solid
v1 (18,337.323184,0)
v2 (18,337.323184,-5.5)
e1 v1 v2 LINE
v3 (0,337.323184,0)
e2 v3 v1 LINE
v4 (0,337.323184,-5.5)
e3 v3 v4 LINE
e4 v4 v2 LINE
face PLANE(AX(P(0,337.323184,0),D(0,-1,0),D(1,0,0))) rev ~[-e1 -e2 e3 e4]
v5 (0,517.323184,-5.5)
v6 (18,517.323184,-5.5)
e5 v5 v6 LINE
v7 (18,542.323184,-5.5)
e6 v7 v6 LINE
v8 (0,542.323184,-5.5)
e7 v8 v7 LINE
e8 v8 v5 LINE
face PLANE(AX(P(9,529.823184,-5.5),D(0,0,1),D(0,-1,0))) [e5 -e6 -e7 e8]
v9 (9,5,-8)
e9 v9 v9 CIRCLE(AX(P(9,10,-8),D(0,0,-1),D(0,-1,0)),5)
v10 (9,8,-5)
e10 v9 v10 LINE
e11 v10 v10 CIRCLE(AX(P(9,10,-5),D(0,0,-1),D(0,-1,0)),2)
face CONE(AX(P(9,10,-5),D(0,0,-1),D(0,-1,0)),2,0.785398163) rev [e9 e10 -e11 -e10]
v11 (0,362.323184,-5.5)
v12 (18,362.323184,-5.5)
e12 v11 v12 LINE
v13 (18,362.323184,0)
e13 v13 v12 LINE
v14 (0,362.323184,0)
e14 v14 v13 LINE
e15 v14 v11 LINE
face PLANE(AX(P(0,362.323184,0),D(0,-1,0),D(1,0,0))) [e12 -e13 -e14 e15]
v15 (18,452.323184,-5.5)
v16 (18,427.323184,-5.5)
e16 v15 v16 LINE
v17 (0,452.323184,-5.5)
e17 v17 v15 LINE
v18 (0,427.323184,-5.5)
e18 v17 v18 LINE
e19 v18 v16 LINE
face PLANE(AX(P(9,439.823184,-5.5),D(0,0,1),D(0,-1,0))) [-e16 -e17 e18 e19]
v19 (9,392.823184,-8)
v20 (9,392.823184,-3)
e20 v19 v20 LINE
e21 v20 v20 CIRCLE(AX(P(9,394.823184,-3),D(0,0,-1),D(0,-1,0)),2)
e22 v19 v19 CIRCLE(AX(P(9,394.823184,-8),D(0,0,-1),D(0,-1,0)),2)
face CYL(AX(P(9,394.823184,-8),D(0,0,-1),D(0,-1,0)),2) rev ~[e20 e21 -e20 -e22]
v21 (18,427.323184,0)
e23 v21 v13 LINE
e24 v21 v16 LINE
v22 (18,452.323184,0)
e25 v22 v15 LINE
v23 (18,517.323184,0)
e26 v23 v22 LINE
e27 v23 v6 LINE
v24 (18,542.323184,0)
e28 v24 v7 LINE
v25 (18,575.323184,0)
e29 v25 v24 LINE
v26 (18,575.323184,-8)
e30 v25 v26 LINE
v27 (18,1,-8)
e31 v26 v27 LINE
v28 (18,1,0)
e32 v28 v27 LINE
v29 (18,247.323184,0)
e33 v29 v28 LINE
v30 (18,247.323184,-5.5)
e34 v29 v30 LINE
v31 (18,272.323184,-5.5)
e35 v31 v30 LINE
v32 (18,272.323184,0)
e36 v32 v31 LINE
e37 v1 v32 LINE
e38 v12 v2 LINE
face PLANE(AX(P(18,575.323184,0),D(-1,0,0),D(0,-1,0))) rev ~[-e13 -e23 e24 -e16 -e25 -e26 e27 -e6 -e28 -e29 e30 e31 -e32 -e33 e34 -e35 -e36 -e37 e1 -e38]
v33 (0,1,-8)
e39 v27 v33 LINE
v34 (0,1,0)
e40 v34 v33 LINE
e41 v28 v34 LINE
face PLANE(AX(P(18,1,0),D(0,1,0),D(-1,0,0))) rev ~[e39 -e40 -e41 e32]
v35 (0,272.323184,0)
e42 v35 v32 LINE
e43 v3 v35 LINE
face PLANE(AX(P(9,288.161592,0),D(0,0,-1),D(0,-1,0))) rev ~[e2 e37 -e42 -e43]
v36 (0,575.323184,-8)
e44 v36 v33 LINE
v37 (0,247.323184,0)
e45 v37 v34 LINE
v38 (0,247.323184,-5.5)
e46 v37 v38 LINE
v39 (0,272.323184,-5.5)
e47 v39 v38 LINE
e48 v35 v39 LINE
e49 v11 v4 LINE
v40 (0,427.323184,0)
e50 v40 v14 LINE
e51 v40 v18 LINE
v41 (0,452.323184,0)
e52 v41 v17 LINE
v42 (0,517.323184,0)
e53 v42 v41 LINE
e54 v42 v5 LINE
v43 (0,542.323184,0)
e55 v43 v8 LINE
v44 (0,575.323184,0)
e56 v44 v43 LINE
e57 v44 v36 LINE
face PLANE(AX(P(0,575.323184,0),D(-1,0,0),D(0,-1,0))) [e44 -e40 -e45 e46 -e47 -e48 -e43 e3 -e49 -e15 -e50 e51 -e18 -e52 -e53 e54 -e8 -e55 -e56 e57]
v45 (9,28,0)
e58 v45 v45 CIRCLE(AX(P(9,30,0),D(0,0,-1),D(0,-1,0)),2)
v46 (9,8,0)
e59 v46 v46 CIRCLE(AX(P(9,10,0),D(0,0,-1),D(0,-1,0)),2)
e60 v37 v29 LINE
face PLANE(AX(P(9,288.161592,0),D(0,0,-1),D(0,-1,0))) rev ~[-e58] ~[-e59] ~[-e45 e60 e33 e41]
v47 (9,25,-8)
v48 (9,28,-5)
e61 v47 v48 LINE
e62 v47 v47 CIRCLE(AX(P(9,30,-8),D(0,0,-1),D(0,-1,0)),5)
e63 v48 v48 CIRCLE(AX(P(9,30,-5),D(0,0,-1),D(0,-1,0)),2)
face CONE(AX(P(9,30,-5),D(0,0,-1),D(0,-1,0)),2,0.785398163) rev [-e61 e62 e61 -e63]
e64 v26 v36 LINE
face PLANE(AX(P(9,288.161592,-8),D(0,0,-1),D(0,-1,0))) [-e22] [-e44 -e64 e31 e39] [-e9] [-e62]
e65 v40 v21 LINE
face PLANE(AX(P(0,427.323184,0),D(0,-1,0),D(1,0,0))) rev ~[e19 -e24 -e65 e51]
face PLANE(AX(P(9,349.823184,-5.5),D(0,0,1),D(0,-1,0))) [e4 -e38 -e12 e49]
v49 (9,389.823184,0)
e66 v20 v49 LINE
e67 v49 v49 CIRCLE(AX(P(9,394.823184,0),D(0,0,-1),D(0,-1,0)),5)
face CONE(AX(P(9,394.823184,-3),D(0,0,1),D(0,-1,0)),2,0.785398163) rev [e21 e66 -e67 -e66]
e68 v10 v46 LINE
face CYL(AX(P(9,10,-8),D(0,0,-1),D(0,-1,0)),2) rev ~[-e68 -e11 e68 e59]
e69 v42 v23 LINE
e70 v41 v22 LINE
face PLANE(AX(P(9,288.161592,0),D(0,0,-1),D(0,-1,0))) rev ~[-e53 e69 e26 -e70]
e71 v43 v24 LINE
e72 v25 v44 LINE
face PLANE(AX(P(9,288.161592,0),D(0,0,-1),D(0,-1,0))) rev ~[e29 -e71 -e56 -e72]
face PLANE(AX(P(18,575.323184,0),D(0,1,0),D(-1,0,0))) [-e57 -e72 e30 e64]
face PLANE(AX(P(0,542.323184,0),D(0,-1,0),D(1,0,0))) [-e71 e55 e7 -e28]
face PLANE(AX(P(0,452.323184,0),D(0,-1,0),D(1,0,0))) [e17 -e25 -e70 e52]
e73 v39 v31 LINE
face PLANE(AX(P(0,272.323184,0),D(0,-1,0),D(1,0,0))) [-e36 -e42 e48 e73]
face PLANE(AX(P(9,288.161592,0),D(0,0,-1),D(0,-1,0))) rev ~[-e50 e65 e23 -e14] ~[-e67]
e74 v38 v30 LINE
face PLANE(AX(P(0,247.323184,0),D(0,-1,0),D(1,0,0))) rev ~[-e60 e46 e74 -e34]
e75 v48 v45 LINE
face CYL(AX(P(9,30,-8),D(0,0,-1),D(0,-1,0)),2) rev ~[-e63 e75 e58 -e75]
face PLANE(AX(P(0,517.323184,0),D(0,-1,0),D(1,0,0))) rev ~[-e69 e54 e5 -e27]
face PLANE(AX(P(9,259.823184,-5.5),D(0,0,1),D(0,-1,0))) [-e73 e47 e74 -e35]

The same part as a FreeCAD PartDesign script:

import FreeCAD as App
import Part
import Sketcher

V = App.Vector


def edges_at(feature, points):
    """Names of the edges that pass closest to the given points."""
    edges = feature.Shape.Edges
    near = lambda p: min(range(len(edges)), key=lambda i: edges[i].distToShape(Part.Vertex(*p))[0])
    return sorted({f"Edge{near(p) + 1}" for p in points})

doc = App.newDocument("Part")
body = doc.addObject("PartDesign::Body", "Body")

sketch1 = body.newObject("Sketcher::SketchObject", "Sketch")
sketch1.AttachmentSupport = (doc.getObject("XY_Plane"), [""])
sketch1.MapMode = "FlatFace"
sketch1.addGeometry([
    Part.LineSegment(V(-229, -90, 0), V(-229, -108, 0)),
    Part.LineSegment(V(-229, -108, 0), V(345, -108, 0)),
    Part.LineSegment(V(345, -108, 0), V(345, -90, 0)),
    Part.LineSegment(V(345, -90, 0), V(-229, -90, 0)),
], False)
sketch1.addConstraint([
    Sketcher.Constraint("Coincident", 0, 2, 1, 1),
    Sketcher.Constraint("Coincident", 1, 2, 2, 1),
    Sketcher.Constraint("Coincident", 2, 2, 3, 1),
    Sketcher.Constraint("Coincident", 3, 2, 0, 1),
    Sketcher.Constraint("Vertical", 0),
    Sketcher.Constraint("Horizontal", 1),
    Sketcher.Constraint("Vertical", 2),
    Sketcher.Constraint("Horizontal", 3),
    Sketcher.Constraint("DistanceY", 0, 2, 0, 1, 18.0),
    Sketcher.Constraint("DistanceY", 0, 2, -1, 1, 108.0),
    Sketcher.Constraint("DistanceX", -1, 1, 1, 2, 345.0),
    Sketcher.Constraint("DistanceX", 1, 1, 1, 2, 574.323184),
])
pad1 = body.newObject("PartDesign::Pad", "Pad")
pad1.Profile = sketch1
pad1.Length = 8

sketch2 = body.newObject("Sketcher::SketchObject", "Sketch001")
sketch2.AttachmentSupport = (doc.getObject("XY_Plane"), [""])
sketch2.MapMode = "FlatFace"
sketch2.AttachmentOffset = App.Placement(V(0, 0, 8), App.Rotation())
sketch2.addGeometry([
    Part.Circle(V(316, -99, 0), V(0, 0, 1), 2),
    Part.Circle(V(336, -99, 0), V(0, 0, 1), 2),
], False)
sketch2.addConstraint([
    Sketcher.Constraint("Equal", 0, 1),
    Sketcher.Constraint("Horizontal", 0, 3, 1, 3),
    Sketcher.Constraint("Diameter", 0, 4.0),
    Sketcher.Constraint("DistanceX", -1, 1, 0, 3, 316.0),
    Sketcher.Constraint("DistanceY", 0, 3, -1, 1, 99.0),
    Sketcher.Constraint("DistanceX", -1, 1, 1, 3, 336.0),
])
pocket1 = body.newObject("PartDesign::Pocket", "Pocket")
pocket1.Profile = sketch2
pocket1.Type = "ThroughAll"
doc.recompute()

chamfer = body.newObject("PartDesign::Chamfer", "Chamfer")
chamfer.Base = (pocket1, edges_at(pocket1, [(334, -99, 8), (314, -99, 8)]))
chamfer.Size = 3

sketch3 = body.newObject("Sketcher::SketchObject", "Sketch002")
sketch3.AttachmentSupport = (doc.getObject("XY_Plane"), [""])
sketch3.MapMode = "FlatFace"
sketch3.addGeometry([
    Part.LineSegment(V(-196, -108, 0), V(-196, -90, 0)),
    Part.LineSegment(V(-196, -90, 0), V(-171, -90, 0)),
    Part.LineSegment(V(-171, -90, 0), V(-171, -108, 0)),
    Part.LineSegment(V(-171, -108, 0), V(-196, -108, 0)),
    Part.LineSegment(V(-106, -108, 0), V(-106, -90, 0)),
    Part.LineSegment(V(-106, -90, 0), V(-81, -90, 0)),
    Part.LineSegment(V(-81, -90, 0), V(-81, -108, 0)),
    Part.LineSegment(V(-81, -108, 0), V(-106, -108, 0)),
    Part.LineSegment(V(-16, -108, 0), V(-16, -90, 0)),
    Part.LineSegment(V(-16, -90, 0), V(9, -90, 0)),
    Part.LineSegment(V(9, -90, 0), V(9, -108, 0)),
    Part.LineSegment(V(9, -108, 0), V(-16, -108, 0)),
    Part.LineSegment(V(74, -108, 0), V(74, -90, 0)),
    Part.LineSegment(V(74, -90, 0), V(99, -90, 0)),
    Part.LineSegment(V(99, -90, 0), V(99, -108, 0)),
    Part.LineSegment(V(99, -108, 0), V(74, -108, 0)),
], False)
sketch3.addConstraint([
    Sketcher.Constraint("Coincident", 0, 2, 1, 1),
    Sketcher.Constraint("Coincident", 1, 2, 2, 1),
    Sketcher.Constraint("Coincident", 2, 2, 3, 1),
    Sketcher.Constraint("Coincident", 3, 2, 0, 1),
    Sketcher.Constraint("Coincident", 4, 2, 5, 1),
    Sketcher.Constraint("Coincident", 5, 2, 6, 1),
    Sketcher.Constraint("Coincident", 6, 2, 7, 1),
    Sketcher.Constraint("Coincident", 7, 2, 4, 1),
    Sketcher.Constraint("Coincident", 8, 2, 9, 1),
    Sketcher.Constraint("Coincident", 9, 2, 10, 1),
    Sketcher.Constraint("Coincident", 10, 2, 11, 1),
    Sketcher.Constraint("Coincident", 11, 2, 8, 1),
    Sketcher.Constraint("Coincident", 12, 2, 13, 1),
    Sketcher.Constraint("Coincident", 13, 2, 14, 1),
    Sketcher.Constraint("Coincident", 14, 2, 15, 1),
    Sketcher.Constraint("Coincident", 15, 2, 12, 1),
    Sketcher.Constraint("Vertical", 0),
    Sketcher.Constraint("Horizontal", 1),
    Sketcher.Constraint("Vertical", 2),
    Sketcher.Constraint("Horizontal", 3),
    Sketcher.Constraint("Vertical", 4),
    Sketcher.Constraint("Horizontal", 5),
    Sketcher.Constraint("Vertical", 6),
    Sketcher.Constraint("Horizontal", 7),
    Sketcher.Constraint("Vertical", 8),
    Sketcher.Constraint("Horizontal", 9),
    Sketcher.Constraint("Vertical", 10),
    Sketcher.Constraint("Horizontal", 11),
    Sketcher.Constraint("Vertical", 12),
    Sketcher.Constraint("Horizontal", 13),
    Sketcher.Constraint("Vertical", 14),
    Sketcher.Constraint("Horizontal", 15),
    Sketcher.Constraint("Horizontal", 1, 2, 4, 2),
    Sketcher.Constraint("Horizontal", 3, 2, 6, 2),
    Sketcher.Constraint("Horizontal", 5, 2, 8, 2),
    Sketcher.Constraint("Horizontal", 7, 2, 10, 2),
    Sketcher.Constraint("Horizontal", 9, 2, 12, 2),
    Sketcher.Constraint("Horizontal", 11, 2, 14, 2),
    Sketcher.Constraint("Equal", 3, 5),
    Sketcher.Constraint("Equal", 7, 9),
    Sketcher.Constraint("Equal", 11, 13),
    Sketcher.Constraint("DistanceX", 1, 1, 1, 2, 25.0),
    Sketcher.Constraint("DistanceY", 0, 1, 0, 2, 18.0),
    Sketcher.Constraint("DistanceY", 0, 2, -1, 1, 90.0),
    Sketcher.Constraint("DistanceX", 1, 2, 4, 2, 65.0),
    Sketcher.Constraint("DistanceX", 5, 2, 8, 2, 65.0),
    Sketcher.Constraint("DistanceX", 9, 2, 12, 2, 65.0),
    Sketcher.Constraint("DistanceX", 0, 2, -1, 1, 196.323184),
])
pocket2 = body.newObject("PartDesign::Pocket", "Pocket001")
pocket2.Profile = sketch3
pocket2.Length = 5.5
pocket2.Reversed = True

sketch4 = body.newObject("Sketcher::SketchObject", "Sketch003")
sketch4.AttachmentSupport = (doc.getObject("XY_Plane"), [""])
sketch4.MapMode = "FlatFace"
sketch4.AttachmentOffset = App.Placement(V(0, 0, 8), App.Rotation())
sketch4.addGeometry(Part.Circle(V(-48.8, -99, 0), V(0, 0, 1), 2), False)
sketch4.addConstraint([
    Sketcher.Constraint("Diameter", 0, 4.0),
    Sketcher.Constraint("DistanceY", 0, 3, -1, 1, 99.0),
    Sketcher.Constraint("DistanceX", 0, 3, -1, 1, 48.823184),
])
pocket3 = body.newObject("PartDesign::Pocket", "Pocket002")
pocket3.Profile = sketch4
pocket3.Type = "ThroughAll"
doc.recompute()

chamfer2 = body.newObject("PartDesign::Chamfer", "Chamfer001")
chamfer2.Base = (pocket3, edges_at(pocket3, [(-50.823, -99, 0)]))
chamfer2.Size = 3
body2 = doc.addObject("PartDesign::Body", "Body001")
doc.recompute()

body.Placement = App.Placement(V(0, 0, 15.5), App.Rotation(V(1, 0, 0), 180))
boolean = body2.newObject("PartDesign::Boolean", "Boolean")
boolean.Type = "Fuse"
boolean.addObjects([body])
body3 = doc.addObject("PartDesign::Body", "Body002")
doc.recompute()

body2.Placement = App.Placement(V(-90, 346, -15.5), App.Rotation(V(0, 0, -1), 90))
boolean2 = body3.newObject("PartDesign::Boolean", "Boolean001")
boolean2.Type = "Fuse"
boolean2.addObjects([body2])

doc.recompute()
